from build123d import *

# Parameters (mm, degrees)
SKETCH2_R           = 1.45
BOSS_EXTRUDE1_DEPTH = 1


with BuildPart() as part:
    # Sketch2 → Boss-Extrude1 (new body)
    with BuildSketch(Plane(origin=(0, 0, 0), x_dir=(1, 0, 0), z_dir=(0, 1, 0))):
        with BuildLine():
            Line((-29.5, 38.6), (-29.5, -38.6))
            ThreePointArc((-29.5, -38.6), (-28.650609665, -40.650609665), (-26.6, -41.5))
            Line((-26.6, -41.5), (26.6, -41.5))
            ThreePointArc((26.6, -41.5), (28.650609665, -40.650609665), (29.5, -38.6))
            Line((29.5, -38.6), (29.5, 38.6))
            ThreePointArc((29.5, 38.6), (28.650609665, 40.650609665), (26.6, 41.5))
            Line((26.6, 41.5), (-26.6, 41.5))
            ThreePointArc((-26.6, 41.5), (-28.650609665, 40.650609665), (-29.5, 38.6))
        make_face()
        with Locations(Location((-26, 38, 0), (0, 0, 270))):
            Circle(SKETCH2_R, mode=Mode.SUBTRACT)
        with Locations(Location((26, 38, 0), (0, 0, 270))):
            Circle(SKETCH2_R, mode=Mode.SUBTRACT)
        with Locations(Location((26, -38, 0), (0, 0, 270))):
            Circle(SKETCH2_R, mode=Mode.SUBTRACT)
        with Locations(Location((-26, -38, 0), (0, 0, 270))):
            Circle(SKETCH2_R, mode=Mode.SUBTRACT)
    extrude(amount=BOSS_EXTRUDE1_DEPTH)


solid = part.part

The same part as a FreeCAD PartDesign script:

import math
import FreeCAD as App
import Part
import Sketcher

doc = App.newDocument("Part")
body = doc.addObject("PartDesign::Body", "Body")

sketch1 = body.newObject("Sketcher::SketchObject", "Sketch")
sketch1.AttachmentSupport = (doc.getObject("XZ_Plane"), [""])
sketch1.MapMode = "FlatFace"
sketch1.addGeometry([
    Part.LineSegment(App.Vector(-29.5, -38.6, 0), App.Vector(-29.5, 38.6, 0)),
    Part.ArcOfCircle(Part.Circle(App.Vector(-26.6, 38.6, 0), App.Vector(0, 0, 1), 2.9), math.radians(90), math.radians(180)),
    Part.LineSegment(App.Vector(-26.6, 41.5, 0), App.Vector(26.6, 41.5, 0)),
    Part.ArcOfCircle(Part.Circle(App.Vector(26.6, 38.6, 0), App.Vector(0, 0, 1), 2.9), math.radians(0), math.radians(90)),
    Part.LineSegment(App.Vector(29.5, 38.6, 0), App.Vector(29.5, -38.6, 0)),
    Part.ArcOfCircle(Part.Circle(App.Vector(26.6, -38.6, 0), App.Vector(0, 0, 1), 2.9), math.radians(-90), math.radians(0)),
    Part.LineSegment(App.Vector(26.6, -41.5, 0), App.Vector(-26.6, -41.5, 0)),
    Part.ArcOfCircle(Part.Circle(App.Vector(-26.6, -38.6, 0), App.Vector(0, 0, 1), 2.9), math.radians(-180), math.radians(-90)),
    Part.Circle(App.Vector(-26, 38, 0), App.Vector(0, 0, 1), 1.45),
    Part.Circle(App.Vector(26, 38, 0), App.Vector(0, 0, 1), 1.45),
    Part.Circle(App.Vector(-26, -38, 0), App.Vector(0, 0, 1), 1.45),
    Part.Circle(App.Vector(26, -38, 0), App.Vector(0, 0, 1), 1.45),
], False)
sketch1.addConstraint([
    Sketcher.Constraint("Tangent", 0, 2, 1, 2),
    Sketcher.Constraint("Tangent", 1, 1, 2, 1),
    Sketcher.Constraint("Tangent", 2, 2, 3, 2),
    Sketcher.Constraint("Tangent", 3, 1, 4, 1),
    Sketcher.Constraint("Tangent", 4, 2, 5, 2),
    Sketcher.Constraint("Tangent", 5, 1, 6, 1),
    Sketcher.Constraint("Tangent", 6, 2, 7, 2),
    Sketcher.Constraint("Tangent", 7, 1, 0, 1),
    Sketcher.Constraint("Vertical", 0),
    Sketcher.Constraint("Horizontal", 2),
    Sketcher.Constraint("Vertical", 4),
    Sketcher.Constraint("Horizontal", 6),
    Sketcher.Constraint("Equal", 1, 3),
    Sketcher.Constraint("Equal", 3, 5),
    Sketcher.Constraint("Equal", 5, 7),
    Sketcher.Constraint("Equal", 8, 9),
    Sketcher.Constraint("Equal", 9, 10),
    Sketcher.Constraint("Equal", 10, 11),
    Sketcher.Constraint("Symmetric", 1, 3, 5, 3, -1, 1),
    Sketcher.Constraint("Symmetric", 9, 3, 10, 3, -1, 1),
    Sketcher.Constraint("Symmetric", 8, 3, 11, 3, -1, 1),
    Sketcher.Constraint("Symmetric", 8, 3, 9, 3, -2),
    Sketcher.Constraint("Diameter", 8, 2.9),
    Sketcher.Constraint("Radius", 1, 2.9),
    Sketcher.Constraint("DistanceX", 2, 1, 2, 2, 53.2),
    Sketcher.Constraint("DistanceY", 0, 1, 0, 2, 77.2),
    Sketcher.Constraint("DistanceX", 8, 3, -1, 1, 26.0),
    Sketcher.Constraint("DistanceY", -1, 1, 8, 3, 38.0),
])
pad1 = body.newObject("PartDesign::Pad", "Pad")
pad1.Profile = sketch1
pad1.Length = 1
pad1.Reversed = True

doc.recompute()
